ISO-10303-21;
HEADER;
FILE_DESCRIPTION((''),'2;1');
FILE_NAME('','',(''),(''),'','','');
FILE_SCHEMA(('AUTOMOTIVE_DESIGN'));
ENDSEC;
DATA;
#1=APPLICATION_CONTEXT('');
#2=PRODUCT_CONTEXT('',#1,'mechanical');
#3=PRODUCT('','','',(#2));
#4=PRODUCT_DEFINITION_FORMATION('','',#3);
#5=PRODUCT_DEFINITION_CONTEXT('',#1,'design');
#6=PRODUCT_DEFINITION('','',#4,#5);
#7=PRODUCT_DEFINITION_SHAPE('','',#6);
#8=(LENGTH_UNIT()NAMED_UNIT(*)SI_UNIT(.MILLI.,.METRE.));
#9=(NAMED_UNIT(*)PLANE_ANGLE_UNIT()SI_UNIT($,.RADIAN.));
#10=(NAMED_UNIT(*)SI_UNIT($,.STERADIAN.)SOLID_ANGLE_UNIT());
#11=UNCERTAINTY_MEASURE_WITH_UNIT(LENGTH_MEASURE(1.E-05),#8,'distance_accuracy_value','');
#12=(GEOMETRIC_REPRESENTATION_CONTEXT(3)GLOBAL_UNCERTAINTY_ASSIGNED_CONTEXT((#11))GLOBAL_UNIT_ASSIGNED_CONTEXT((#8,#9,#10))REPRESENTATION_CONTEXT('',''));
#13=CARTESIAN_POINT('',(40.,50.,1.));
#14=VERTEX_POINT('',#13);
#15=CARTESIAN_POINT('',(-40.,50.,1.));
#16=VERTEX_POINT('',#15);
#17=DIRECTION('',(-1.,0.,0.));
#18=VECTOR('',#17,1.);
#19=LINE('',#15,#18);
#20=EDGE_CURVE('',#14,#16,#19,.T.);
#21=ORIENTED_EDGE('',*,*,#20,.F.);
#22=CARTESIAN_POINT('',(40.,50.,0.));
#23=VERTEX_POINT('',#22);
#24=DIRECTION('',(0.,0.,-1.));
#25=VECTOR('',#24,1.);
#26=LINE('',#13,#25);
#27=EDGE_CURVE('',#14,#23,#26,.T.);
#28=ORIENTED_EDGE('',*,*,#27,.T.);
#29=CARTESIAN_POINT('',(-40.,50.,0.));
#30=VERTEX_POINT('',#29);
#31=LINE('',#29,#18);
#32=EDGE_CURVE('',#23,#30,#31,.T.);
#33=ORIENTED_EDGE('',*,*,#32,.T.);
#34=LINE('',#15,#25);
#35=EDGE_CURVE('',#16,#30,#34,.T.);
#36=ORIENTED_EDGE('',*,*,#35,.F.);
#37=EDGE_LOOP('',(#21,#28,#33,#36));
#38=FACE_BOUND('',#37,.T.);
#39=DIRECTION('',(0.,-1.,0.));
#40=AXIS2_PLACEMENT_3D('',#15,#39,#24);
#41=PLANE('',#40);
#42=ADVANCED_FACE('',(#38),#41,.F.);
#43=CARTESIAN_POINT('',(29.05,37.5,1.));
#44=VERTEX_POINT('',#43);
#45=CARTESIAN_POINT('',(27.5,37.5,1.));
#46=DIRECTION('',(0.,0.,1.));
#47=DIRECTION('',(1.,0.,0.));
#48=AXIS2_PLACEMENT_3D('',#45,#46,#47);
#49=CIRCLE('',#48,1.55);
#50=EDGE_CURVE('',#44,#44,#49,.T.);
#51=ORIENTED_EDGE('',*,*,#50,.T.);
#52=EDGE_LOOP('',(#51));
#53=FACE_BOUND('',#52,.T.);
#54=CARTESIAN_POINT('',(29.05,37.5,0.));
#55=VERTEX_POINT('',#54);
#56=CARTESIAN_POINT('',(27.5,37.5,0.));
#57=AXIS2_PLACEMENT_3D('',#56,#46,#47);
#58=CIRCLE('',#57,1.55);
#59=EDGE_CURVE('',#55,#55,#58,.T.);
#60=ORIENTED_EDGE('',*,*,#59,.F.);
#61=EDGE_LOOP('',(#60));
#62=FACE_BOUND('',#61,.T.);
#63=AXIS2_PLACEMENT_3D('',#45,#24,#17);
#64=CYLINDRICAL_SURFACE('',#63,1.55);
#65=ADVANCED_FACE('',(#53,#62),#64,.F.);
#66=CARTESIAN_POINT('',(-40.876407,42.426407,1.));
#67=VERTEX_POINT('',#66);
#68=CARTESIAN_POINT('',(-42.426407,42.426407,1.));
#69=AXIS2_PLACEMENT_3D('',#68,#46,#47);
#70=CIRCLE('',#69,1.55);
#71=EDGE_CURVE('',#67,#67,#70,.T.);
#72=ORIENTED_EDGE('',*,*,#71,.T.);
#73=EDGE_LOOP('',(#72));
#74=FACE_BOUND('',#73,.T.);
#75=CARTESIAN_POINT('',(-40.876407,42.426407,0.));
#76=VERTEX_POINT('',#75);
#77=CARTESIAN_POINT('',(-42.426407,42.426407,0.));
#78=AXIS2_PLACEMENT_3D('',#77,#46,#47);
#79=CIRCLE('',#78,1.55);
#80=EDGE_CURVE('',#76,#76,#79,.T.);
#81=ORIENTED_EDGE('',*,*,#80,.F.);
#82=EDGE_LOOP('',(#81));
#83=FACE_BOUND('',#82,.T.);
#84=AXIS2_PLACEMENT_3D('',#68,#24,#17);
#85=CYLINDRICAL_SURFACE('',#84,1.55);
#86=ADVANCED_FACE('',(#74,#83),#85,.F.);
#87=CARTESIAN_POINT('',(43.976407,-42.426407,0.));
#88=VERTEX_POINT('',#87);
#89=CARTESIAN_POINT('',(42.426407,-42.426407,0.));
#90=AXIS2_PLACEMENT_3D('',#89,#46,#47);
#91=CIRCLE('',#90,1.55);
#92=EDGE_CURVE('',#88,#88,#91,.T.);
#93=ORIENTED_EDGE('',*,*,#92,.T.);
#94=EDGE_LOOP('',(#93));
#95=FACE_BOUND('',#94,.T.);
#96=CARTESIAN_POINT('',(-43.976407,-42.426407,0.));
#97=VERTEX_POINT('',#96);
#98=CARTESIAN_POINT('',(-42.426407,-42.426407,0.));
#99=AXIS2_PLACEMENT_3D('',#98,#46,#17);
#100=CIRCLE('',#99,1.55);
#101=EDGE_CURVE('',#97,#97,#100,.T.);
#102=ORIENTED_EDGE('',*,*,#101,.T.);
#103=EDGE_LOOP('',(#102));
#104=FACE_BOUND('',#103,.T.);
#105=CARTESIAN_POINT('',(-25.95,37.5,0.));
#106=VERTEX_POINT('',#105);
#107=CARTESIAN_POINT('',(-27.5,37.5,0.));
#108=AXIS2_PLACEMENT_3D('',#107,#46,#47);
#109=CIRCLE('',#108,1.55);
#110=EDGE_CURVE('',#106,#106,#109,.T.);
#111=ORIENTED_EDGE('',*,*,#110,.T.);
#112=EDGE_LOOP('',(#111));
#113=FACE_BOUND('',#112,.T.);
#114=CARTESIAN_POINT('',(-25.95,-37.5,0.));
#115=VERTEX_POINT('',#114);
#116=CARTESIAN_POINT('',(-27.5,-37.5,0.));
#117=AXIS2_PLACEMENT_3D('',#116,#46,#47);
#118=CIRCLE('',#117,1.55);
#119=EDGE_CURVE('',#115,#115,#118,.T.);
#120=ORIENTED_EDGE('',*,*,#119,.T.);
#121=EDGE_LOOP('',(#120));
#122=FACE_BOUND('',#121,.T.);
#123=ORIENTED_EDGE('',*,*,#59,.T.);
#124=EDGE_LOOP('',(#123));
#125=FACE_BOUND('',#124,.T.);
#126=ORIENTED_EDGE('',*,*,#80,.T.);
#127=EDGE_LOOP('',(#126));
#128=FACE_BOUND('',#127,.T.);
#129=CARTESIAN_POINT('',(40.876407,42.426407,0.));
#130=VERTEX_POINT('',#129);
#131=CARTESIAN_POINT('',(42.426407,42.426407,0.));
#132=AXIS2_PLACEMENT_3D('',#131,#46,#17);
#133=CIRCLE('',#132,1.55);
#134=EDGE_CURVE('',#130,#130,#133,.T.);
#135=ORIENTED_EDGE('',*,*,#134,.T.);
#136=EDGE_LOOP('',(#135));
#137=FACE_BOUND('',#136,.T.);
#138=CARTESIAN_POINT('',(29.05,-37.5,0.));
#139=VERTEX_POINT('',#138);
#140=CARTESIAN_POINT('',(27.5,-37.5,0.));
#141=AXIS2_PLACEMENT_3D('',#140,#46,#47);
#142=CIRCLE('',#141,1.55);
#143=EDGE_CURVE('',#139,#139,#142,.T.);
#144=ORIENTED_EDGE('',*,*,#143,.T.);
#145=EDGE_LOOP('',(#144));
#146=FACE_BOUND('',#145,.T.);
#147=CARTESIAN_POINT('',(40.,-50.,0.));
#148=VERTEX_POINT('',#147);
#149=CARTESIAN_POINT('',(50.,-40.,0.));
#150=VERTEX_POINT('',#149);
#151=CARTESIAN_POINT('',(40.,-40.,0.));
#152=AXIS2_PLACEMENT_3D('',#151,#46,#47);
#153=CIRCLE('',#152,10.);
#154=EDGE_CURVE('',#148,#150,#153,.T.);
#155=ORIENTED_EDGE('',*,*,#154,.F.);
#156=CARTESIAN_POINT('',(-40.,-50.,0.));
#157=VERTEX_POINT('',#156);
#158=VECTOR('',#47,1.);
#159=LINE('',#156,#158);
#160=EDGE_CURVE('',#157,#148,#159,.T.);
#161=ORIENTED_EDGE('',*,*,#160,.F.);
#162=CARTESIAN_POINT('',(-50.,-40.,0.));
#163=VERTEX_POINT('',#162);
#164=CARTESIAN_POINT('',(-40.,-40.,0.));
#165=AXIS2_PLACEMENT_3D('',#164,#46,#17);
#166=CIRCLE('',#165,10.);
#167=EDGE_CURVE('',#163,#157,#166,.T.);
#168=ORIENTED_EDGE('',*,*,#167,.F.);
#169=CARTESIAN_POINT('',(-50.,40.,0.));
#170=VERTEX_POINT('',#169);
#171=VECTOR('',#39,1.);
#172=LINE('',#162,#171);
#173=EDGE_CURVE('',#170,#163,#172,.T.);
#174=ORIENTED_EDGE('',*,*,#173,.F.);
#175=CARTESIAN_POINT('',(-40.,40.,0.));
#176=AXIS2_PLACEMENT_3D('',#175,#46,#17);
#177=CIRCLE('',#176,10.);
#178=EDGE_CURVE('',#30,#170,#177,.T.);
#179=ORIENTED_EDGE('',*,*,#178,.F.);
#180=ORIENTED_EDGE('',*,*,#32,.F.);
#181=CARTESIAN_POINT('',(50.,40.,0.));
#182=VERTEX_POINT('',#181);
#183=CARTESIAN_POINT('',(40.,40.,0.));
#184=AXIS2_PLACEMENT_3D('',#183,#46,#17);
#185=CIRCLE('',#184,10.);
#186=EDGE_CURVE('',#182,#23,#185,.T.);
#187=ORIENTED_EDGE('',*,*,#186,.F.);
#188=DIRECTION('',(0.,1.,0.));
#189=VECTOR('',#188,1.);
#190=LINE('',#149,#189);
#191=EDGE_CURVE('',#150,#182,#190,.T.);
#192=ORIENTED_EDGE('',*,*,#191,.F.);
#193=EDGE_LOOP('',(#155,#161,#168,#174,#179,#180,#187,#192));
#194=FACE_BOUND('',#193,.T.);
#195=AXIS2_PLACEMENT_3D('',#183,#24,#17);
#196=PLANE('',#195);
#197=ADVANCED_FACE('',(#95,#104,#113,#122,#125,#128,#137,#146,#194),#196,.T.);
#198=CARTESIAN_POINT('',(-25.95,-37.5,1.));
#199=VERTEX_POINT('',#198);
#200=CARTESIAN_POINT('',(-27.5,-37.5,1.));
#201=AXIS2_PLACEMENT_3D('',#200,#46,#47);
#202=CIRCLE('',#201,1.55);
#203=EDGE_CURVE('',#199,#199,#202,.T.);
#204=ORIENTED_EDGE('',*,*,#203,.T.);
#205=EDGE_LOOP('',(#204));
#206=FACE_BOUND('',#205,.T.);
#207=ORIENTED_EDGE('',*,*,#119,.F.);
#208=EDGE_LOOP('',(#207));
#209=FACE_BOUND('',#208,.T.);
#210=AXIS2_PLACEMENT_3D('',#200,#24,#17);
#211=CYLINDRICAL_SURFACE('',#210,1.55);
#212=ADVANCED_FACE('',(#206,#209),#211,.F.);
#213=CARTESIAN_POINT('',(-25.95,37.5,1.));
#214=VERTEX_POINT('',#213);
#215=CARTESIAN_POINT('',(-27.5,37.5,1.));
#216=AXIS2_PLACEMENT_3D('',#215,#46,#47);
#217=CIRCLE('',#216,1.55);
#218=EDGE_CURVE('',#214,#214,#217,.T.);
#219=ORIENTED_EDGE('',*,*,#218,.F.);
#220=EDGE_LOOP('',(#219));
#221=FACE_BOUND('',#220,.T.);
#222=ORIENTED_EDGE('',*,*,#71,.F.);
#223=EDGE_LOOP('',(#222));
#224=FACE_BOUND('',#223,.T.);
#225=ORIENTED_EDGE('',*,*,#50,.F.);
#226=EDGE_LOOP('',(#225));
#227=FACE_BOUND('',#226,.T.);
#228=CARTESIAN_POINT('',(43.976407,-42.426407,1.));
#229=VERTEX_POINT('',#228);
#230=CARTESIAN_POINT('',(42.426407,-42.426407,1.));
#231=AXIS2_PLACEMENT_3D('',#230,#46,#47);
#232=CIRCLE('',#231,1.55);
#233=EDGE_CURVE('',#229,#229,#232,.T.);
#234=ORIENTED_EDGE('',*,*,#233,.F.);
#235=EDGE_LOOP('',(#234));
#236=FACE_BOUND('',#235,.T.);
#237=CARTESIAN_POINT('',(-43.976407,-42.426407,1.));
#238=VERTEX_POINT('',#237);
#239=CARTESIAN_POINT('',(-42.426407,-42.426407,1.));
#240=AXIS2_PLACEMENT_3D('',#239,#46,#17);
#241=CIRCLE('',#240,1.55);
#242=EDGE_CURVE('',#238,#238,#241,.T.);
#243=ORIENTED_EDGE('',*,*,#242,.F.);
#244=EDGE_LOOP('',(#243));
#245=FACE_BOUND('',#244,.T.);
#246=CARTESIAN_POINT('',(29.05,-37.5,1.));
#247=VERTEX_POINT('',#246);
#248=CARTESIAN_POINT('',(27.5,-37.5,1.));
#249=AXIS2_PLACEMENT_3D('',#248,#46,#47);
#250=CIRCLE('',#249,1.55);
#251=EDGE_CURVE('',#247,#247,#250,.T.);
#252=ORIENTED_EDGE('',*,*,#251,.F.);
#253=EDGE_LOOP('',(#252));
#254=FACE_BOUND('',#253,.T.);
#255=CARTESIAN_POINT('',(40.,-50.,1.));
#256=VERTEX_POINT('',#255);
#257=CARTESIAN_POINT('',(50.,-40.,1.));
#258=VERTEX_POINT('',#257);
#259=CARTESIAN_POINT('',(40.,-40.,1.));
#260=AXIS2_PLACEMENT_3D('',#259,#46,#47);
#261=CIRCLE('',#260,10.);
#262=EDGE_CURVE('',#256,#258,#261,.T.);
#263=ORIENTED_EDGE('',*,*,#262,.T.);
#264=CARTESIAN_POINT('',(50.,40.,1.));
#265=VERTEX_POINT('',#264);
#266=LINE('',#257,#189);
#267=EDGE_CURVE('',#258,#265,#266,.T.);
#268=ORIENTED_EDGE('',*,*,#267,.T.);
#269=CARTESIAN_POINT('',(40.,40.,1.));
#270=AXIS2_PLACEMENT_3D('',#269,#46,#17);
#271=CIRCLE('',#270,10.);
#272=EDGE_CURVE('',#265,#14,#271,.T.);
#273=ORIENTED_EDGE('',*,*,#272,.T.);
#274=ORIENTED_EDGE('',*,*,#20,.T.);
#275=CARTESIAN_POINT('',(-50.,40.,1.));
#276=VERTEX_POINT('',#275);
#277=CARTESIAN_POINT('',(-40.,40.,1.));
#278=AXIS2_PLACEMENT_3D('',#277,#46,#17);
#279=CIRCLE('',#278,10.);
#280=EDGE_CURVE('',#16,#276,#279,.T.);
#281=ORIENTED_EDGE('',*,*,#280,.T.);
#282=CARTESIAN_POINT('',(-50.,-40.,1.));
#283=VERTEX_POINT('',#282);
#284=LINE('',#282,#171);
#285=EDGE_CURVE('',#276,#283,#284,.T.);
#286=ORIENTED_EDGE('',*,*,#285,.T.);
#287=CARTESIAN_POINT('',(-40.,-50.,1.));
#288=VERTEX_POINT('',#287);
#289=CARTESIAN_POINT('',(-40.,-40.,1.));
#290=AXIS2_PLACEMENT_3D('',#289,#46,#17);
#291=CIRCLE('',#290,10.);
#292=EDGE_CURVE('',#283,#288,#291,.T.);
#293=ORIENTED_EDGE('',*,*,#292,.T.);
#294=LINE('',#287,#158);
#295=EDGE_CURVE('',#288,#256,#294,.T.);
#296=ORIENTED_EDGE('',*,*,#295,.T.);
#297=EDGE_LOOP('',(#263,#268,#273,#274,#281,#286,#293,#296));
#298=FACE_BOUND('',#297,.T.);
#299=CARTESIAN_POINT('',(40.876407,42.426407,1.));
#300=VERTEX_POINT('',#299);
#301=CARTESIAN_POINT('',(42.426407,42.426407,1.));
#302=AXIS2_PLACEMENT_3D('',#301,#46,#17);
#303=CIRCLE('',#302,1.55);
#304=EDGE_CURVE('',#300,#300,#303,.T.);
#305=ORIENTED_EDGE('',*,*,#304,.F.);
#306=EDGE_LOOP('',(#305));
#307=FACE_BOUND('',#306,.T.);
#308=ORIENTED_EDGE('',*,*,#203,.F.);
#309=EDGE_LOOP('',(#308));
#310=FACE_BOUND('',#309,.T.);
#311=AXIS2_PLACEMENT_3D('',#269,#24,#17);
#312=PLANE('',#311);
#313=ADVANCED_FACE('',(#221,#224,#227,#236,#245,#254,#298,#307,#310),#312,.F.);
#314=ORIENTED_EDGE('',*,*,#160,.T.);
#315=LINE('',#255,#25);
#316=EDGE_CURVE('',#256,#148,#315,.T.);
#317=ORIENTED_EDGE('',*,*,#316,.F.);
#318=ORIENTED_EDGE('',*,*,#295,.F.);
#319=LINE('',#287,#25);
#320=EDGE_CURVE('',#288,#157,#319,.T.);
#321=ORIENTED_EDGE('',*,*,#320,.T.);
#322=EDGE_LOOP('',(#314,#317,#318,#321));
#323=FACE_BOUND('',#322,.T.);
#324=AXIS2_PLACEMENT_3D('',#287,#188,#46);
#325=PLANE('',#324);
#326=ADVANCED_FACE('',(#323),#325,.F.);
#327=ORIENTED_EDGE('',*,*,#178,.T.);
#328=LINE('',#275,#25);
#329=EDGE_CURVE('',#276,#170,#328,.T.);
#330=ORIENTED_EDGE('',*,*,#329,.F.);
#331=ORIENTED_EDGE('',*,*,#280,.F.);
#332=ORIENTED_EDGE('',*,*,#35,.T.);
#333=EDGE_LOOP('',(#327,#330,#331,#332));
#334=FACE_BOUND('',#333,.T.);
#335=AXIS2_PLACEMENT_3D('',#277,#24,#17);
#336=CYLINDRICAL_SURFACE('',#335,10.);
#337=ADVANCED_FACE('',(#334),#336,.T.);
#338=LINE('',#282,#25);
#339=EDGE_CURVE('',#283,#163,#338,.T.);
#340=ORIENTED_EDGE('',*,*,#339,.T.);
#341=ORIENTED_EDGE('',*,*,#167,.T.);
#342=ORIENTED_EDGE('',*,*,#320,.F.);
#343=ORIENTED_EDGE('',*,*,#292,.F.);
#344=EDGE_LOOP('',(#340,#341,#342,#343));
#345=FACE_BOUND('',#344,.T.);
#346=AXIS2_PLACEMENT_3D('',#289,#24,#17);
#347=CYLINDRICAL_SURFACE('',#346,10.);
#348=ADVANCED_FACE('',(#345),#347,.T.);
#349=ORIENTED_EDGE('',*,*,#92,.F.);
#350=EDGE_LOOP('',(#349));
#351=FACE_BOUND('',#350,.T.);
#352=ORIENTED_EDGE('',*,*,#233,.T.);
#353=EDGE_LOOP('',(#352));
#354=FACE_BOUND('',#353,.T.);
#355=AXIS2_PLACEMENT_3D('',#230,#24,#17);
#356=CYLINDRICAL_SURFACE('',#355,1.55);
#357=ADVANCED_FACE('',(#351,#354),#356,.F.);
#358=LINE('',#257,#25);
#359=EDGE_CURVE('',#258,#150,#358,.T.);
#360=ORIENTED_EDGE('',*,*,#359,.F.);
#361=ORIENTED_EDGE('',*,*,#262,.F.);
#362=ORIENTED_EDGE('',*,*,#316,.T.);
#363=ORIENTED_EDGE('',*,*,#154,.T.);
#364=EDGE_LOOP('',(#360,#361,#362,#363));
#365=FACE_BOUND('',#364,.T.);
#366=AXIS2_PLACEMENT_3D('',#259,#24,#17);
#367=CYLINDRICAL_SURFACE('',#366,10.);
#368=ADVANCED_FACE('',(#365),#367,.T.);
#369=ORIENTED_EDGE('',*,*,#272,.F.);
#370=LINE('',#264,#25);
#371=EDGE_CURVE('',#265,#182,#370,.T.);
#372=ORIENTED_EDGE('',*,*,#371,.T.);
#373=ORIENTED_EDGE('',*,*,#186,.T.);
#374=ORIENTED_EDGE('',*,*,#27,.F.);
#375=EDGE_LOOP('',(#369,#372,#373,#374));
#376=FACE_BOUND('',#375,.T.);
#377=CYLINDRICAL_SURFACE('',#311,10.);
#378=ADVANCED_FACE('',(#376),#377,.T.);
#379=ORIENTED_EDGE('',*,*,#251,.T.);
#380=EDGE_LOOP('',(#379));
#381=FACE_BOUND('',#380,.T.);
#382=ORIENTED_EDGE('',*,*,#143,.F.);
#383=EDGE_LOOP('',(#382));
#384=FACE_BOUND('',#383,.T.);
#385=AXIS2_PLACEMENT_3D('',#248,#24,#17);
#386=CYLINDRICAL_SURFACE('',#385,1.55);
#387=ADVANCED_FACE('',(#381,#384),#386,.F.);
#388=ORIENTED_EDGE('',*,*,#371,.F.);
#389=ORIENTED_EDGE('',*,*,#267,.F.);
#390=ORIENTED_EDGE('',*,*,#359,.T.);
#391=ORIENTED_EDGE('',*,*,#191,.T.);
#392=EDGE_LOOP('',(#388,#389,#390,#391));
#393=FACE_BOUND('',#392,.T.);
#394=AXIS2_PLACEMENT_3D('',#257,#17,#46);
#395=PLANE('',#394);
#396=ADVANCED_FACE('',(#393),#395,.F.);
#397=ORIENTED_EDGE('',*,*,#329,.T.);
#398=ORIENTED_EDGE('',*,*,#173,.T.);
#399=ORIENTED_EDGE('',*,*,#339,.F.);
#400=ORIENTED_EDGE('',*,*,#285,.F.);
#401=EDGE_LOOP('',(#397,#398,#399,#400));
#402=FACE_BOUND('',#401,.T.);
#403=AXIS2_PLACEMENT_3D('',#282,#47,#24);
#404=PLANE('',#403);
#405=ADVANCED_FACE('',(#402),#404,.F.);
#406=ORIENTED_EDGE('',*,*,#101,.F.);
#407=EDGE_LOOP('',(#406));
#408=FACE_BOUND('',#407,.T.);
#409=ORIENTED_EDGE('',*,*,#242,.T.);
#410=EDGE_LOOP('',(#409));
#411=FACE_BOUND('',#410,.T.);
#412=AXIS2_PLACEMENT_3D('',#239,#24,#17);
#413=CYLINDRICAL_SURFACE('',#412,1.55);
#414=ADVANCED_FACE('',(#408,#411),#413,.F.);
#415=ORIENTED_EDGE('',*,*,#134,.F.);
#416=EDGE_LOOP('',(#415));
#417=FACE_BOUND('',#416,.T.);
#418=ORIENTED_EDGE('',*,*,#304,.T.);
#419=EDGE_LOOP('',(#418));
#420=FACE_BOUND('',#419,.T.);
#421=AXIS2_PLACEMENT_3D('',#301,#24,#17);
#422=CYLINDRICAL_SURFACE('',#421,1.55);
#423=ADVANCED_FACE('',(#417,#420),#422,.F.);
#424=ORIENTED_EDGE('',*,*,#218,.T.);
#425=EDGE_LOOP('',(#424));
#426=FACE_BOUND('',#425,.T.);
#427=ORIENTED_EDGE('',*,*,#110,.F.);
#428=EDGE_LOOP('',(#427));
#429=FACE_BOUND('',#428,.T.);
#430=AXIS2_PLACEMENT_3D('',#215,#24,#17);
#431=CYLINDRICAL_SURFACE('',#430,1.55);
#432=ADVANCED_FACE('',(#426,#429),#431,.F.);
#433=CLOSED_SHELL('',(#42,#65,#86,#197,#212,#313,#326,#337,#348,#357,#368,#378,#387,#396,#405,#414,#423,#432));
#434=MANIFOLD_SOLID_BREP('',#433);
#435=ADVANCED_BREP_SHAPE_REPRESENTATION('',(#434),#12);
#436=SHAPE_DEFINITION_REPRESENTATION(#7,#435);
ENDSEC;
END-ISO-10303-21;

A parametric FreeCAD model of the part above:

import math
import FreeCAD as App
import Part
import Sketcher
from FreeCAD import Vector
Q = App.Units.Quantity

doc = App.newDocument("Part")
body = doc.addObject("PartDesign::Body", "Body")

# Sketch on XY plane
sketch1 = doc.addObject("Sketcher::SketchObject", "Sketch")
body.addObject(sketch1)
sketch1.AttachmentSupport = (doc.XY_Plane, [""])
sketch1.MapMode = "FlatFace"
sketch1.addGeometry(Part.LineSegment(Vector(-40, -50, 0), Vector(40, -50, 0)), False)
sketch1.addGeometry(Part.ArcOfCircle(Part.Circle(Vector(40, -40, 0), Vector(0, 0, 1), 10), math.radians(-90), math.radians(0)), False)
sketch1.addGeometry(Part.LineSegment(Vector(50, -40, 0), Vector(50, 40, 0)), False)
sketch1.addGeometry(Part.ArcOfCircle(Part.Circle(Vector(40, 40, 0), Vector(0, 0, 1), 10), math.radians(0), math.radians(90)), False)
sketch1.addGeometry(Part.LineSegment(Vector(40, 50, 0), Vector(-40, 50, 0)), False)
sketch1.addGeometry(Part.ArcOfCircle(Part.Circle(Vector(-40, 40, 0), Vector(0, 0, 1), 10), math.radians(90), math.radians(180)), False)
sketch1.addGeometry(Part.LineSegment(Vector(-50, 40, 0), Vector(-50, -40, 0)), False)
sketch1.addGeometry(Part.ArcOfCircle(Part.Circle(Vector(-40, -40, 0), Vector(0, 0, 1), 10), math.radians(180), math.radians(270)), False)
sketch1.addGeometry(Part.Circle(Vector(-42.4, -42.4, 0), Vector(0, 0, 1), 1.6), False)
sketch1.addGeometry(Part.Circle(Vector(-27.5, -37.5, 0), Vector(0, 0, 1), 1.6), False)
sketch1.addGeometry(Part.Circle(Vector(27.5, -37.5, 0), Vector(0, 0, 1), 1.6), False)
sketch1.addGeometry(Part.Circle(Vector(42.4, -42.4, 0), Vector(0, 0, 1), 1.6), False)
sketch1.addGeometry(Part.Circle(Vector(-42.4, 42.4, 0), Vector(0, 0, 1), 1.6), False)
sketch1.addGeometry(Part.Circle(Vector(-27.5, 37.5, 0), Vector(0, 0, 1), 1.6), False)
sketch1.addGeometry(Part.Circle(Vector(27.5, 37.5, 0), Vector(0, 0, 1), 1.6), False)
sketch1.addGeometry(Part.Circle(Vector(42.4, 42.4, 0), Vector(0, 0, 1), 1.6), False)
sketch1.addConstraint(Sketcher.Constraint("Tangent", 0, 2, 1, 1))
sketch1.addConstraint(Sketcher.Constraint("Tangent", 1, 2, 2, 1))
sketch1.addConstraint(Sketcher.Constraint("Tangent", 2, 2, 3, 1))
sketch1.addConstraint(Sketcher.Constraint("Tangent", 3, 2, 4, 1))
sketch1.addConstraint(Sketcher.Constraint("Tangent", 4, 2, 5, 1))
sketch1.addConstraint(Sketcher.Constraint("Tangent", 5, 2, 6, 1))
sketch1.addConstraint(Sketcher.Constraint("Tangent", 6, 2, 7, 1))
sketch1.addConstraint(Sketcher.Constraint("Tangent", 7, 2, 0, 1))
sketch1.addConstraint(Sketcher.Constraint("Horizontal", 0))
sketch1.addConstraint(Sketcher.Constraint("Vertical", 2))
sketch1.addConstraint(Sketcher.Constraint("Horizontal", 4))
sketch1.addConstraint(Sketcher.Constraint("Vertical", 6))
sketch1.addConstraint(Sketcher.Constraint("Equal", 1, 3))
sketch1.addConstraint(Sketcher.Constraint("Equal", 3, 5))
sketch1.addConstraint(Sketcher.Constraint("Equal", 5, 7))
sketch1.addConstraint(Sketcher.Constraint("Equal", 8, 9))
sketch1.addConstraint(Sketcher.Constraint("Equal", 9, 10))
sketch1.addConstraint(Sketcher.Constraint("Equal", 10, 11))
sketch1.addConstraint(Sketcher.Constraint("Equal", 11, 12))
sketch1.addConstraint(Sketcher.Constraint("Equal", 12, 13))
sketch1.addConstraint(Sketcher.Constraint("Equal", 13, 14))
sketch1.addConstraint(Sketcher.Constraint("Equal", 14, 15))
sketch1.addConstraint(Sketcher.Constraint("Symmetric", 1, 3, 5, 3, -1, 1))
sketch1.addConstraint(Sketcher.Constraint("Symmetric", 11, 3, 12, 3, -1, 1))
sketch1.addConstraint(Sketcher.Constraint("Symmetric", 10, 3, 13, 3, -1, 1))
sketch1.addConstraint(Sketcher.Constraint("Symmetric", 9, 3, 14, 3, -1, 1))
sketch1.addConstraint(Sketcher.Constraint("Symmetric", 8, 3, 15, 3, -1, 1))
sketch1.addConstraint(Sketcher.Constraint("Symmetric", 9, 3, 10, 3, -2))
sketch1.addConstraint(Sketcher.Constraint("Symmetric", 8, 3, 11, 3, -2))
sketch1.addConstraint(Sketcher.Constraint("Equal", 4, 2))
sketch1.addConstraint(Sketcher.Constraint("Radius", 1, Q("10 mm")))
sketch1.addConstraint(Sketcher.Constraint("Diameter", 8, Q("3.1 mm")))
sketch1.addConstraint(Sketcher.Constraint("DistanceX", 0, 1, 0, 2, Q("80 mm")))
sketch1.addConstraint(Sketcher.Constraint("DistanceX", 9, 3, 10, 3, Q("55 mm")))
sketch1.addConstraint(Sketcher.Constraint("DistanceY", 9, 3, 13, 3, Q("75 mm")))
sketch1.addConstraint(Sketcher.Constraint("DistanceX", 8, 3, -1, 1, Q("42.426407 mm")))
sketch1.addConstraint(Sketcher.Constraint("DistanceY", 8, 3, -1, 1, Q("42.426407 mm")))
pad1 = doc.addObject("PartDesign::Pad", "Pad")
body.addObject(pad1)
pad1.Profile = sketch1
pad1.Length = 1

doc.recompute()
